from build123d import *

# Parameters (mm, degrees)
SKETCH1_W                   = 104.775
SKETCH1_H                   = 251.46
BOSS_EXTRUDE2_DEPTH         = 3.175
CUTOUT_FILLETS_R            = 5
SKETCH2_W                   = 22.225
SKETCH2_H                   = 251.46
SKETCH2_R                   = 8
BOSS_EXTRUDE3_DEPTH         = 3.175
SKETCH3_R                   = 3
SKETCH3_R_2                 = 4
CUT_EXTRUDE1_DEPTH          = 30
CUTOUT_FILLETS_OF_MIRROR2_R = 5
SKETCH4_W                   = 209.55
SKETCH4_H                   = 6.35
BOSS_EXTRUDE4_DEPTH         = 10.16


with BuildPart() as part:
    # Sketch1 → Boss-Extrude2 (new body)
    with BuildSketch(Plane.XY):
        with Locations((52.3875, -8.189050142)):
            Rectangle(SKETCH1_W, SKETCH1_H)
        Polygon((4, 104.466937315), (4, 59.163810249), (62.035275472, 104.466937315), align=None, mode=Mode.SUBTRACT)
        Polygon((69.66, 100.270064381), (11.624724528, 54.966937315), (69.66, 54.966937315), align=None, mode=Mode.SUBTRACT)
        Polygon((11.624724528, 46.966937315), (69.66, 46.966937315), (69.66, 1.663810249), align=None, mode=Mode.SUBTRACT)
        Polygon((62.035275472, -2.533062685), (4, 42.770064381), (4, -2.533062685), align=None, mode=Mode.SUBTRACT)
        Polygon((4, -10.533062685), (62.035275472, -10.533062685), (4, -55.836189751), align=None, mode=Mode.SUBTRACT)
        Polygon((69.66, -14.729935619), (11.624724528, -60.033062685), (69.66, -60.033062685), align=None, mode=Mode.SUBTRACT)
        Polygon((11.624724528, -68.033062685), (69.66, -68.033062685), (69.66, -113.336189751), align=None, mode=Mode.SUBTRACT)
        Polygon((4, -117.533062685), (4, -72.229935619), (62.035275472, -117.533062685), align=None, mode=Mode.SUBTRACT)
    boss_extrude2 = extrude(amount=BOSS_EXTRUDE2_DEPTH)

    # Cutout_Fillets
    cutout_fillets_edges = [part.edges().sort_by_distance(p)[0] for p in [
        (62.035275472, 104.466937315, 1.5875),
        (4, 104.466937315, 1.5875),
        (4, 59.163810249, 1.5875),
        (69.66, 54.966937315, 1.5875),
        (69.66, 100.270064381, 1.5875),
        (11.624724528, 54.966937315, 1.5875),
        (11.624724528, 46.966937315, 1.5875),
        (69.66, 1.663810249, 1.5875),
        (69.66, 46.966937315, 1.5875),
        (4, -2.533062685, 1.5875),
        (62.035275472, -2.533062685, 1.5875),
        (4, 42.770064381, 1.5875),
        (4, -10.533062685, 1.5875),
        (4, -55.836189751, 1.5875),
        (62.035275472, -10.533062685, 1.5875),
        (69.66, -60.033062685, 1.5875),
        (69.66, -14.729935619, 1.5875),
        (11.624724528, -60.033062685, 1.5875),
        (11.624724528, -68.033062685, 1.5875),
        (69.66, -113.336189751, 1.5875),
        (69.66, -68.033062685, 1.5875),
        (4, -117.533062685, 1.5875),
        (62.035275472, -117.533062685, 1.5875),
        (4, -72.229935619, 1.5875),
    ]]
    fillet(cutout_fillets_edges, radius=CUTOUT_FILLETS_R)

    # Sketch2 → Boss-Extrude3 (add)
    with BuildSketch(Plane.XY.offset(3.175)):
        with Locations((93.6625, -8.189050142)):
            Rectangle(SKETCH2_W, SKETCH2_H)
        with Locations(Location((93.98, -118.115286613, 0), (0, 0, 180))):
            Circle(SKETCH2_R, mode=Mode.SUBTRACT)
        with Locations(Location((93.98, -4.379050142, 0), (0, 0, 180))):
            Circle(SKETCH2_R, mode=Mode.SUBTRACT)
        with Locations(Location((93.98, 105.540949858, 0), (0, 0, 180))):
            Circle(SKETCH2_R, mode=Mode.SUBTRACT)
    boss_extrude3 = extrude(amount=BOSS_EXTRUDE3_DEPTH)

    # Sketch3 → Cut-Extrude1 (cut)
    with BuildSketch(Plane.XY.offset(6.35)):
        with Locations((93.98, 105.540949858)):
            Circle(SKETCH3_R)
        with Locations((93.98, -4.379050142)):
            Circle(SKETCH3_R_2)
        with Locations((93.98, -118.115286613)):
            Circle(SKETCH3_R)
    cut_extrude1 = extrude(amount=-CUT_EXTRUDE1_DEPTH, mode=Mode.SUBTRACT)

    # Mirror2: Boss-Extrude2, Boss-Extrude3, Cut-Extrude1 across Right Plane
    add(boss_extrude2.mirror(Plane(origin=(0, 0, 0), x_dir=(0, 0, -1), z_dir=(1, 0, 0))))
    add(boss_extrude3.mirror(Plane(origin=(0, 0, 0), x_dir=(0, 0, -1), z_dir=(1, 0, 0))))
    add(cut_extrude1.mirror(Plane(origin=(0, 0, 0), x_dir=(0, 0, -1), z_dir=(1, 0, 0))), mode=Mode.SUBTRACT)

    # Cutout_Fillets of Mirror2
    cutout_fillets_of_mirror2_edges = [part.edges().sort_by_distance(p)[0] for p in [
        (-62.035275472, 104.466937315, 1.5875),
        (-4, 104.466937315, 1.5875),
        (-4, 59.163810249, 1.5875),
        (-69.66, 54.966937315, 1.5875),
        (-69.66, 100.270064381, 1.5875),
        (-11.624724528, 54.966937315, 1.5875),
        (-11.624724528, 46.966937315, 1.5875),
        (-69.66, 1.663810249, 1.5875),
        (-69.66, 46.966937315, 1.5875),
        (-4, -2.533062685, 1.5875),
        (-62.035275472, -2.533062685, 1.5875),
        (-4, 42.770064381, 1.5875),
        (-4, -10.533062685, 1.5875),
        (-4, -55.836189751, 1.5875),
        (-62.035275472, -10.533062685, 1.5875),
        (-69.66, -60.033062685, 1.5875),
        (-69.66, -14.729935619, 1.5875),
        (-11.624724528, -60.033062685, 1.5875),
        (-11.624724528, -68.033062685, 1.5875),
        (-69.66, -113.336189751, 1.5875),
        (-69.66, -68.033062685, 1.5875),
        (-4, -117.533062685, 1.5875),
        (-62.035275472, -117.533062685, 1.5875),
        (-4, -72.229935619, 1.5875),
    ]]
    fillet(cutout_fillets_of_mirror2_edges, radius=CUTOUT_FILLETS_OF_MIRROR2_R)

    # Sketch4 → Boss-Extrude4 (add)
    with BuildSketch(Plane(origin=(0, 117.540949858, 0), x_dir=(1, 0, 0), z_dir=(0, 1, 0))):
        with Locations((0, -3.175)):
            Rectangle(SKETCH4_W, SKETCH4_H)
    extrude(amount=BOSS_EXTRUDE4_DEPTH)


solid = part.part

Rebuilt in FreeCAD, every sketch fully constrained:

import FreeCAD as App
import Part
import Sketcher

V = App.Vector
Q = App.Units.Quantity


def edges_at(feature, points):
    """Names of the edges that pass closest to the given points."""
    edges = feature.Shape.Edges
    near = lambda p: min(range(len(edges)), key=lambda i: edges[i].distToShape(Part.Vertex(*p))[0])
    return sorted({f"Edge{near(p) + 1}" for p in points})


def add_polygon(sketch, points):
    """Adds a closed chain of lines whose ends are joined by coincident constraints."""
    first, n = sketch.GeometryCount, len(points)
    for a, b in zip(points, points[1:] + points[:1]):
        sketch.addGeometry(Part.LineSegment(App.Vector(*a, 0), App.Vector(*b, 0)), False)
    for i in range(n):
        sketch.addConstraint(Sketcher.Constraint("Coincident", first + i, 2, first + (i + 1) % n, 1))

doc = App.newDocument("Part")
params = doc.addObject("Spreadsheet::Sheet", "Params")
for row, (alias, value) in enumerate([
    ("sketch1_height", "9.9 in"),
    ("sketch1_width", "4.125 in"),
    ("pad1_length", "0.125 in"),
    ("fillet_radius", "5 mm"),
    ("sketch2_height", "9.9 in"),
    ("sketch2_width", "0.875 in"),
    ("pad2_length", "0.125 in"),
    ("pocket1_length", "30 mm"),
    ("fillet2_radius", "5 mm"),
    ("sketch4_width", "8.25 in"),
    ("sketch4_height", "0.25 in"),
    ("pad3_length", "0.4 in"),
], start=1):
    params.set(f"A{row}", alias)
    params.set(f"B{row}", "=" + value)
    params.setAlias(f"B{row}", alias)

body = doc.addObject("PartDesign::Body", "Body")

sketch1 = body.newObject("Sketcher::SketchObject", "Sketch")
sketch1.AttachmentSupport = (doc.getObject("XY_Plane"), [""])
sketch1.MapMode = "FlatFace"
add_polygon(sketch1, [(0, 118), (0, -134), (105, -134), (105, 118)])
add_polygon(sketch1, [(62, -118), (4, -118), (4, -72)])
add_polygon(sketch1, [(4, -56), (4, -11), (62, -11)])
add_polygon(sketch1, [(70, -113), (12, -68), (70, -68)])
add_polygon(sketch1, [(12, -60), (70, -15), (70, -60)])
add_polygon(sketch1, [(4, 43), (62, -3), (4, -3)])
add_polygon(sketch1, [(4, 59), (4, 104), (62, 104)])
add_polygon(sketch1, [(70, 2), (12, 47), (70, 47)])
add_polygon(sketch1, [(12, 55), (70, 100), (70, 55)])
sketch1.addConstraint(Sketcher.Constraint("Vertical", 0))
sketch1.addConstraint(Sketcher.Constraint("Horizontal", 1))
sketch1.addConstraint(Sketcher.Constraint("Vertical", 2))
sketch1.addConstraint(Sketcher.Constraint("Horizontal", 3))
sketch1.addConstraint(Sketcher.Constraint("Horizontal", 4))
sketch1.addConstraint(Sketcher.Constraint("Vertical", 5))
sketch1.addConstraint(Sketcher.Constraint("Vertical", 7))
sketch1.addConstraint(Sketcher.Constraint("Horizontal", 8))
sketch1.addConstraint(Sketcher.Constraint("Horizontal", 11))
sketch1.addConstraint(Sketcher.Constraint("Vertical", 12))
sketch1.addConstraint(Sketcher.Constraint("Vertical", 14))
sketch1.addConstraint(Sketcher.Constraint("Horizontal", 15))
sketch1.addConstraint(Sketcher.Constraint("Horizontal", 17))
sketch1.addConstraint(Sketcher.Constraint("Vertical", 18))
sketch1.addConstraint(Sketcher.Constraint("Vertical", 19))
sketch1.addConstraint(Sketcher.Constraint("Horizontal", 20))
sketch1.addConstraint(Sketcher.Constraint("Horizontal", 23))
sketch1.addConstraint(Sketcher.Constraint("Vertical", 24))
sketch1.addConstraint(Sketcher.Constraint("Vertical", 26))
sketch1.addConstraint(Sketcher.Constraint("Horizontal", 27))
sketch1.addConstraint(Sketcher.Constraint("PointOnObject", 0, 2, -2))
sketch1.addConstraint(Sketcher.Constraint("Parallel", 6, 10))
sketch1.addConstraint(Sketcher.Constraint("Parallel", 9, 13))
sketch1.addConstraint(Sketcher.Constraint("Parallel", 10, 16))
sketch1.addConstraint(Sketcher.Constraint("Parallel", 13, 21))
sketch1.addConstraint(Sketcher.Constraint("Parallel", 16, 22))
sketch1.addConstraint(Sketcher.Constraint("Parallel", 21, 25))
sketch1.addConstraint(Sketcher.Constraint("Vertical", 5, 2, 7, 2))
sketch1.addConstraint(Sketcher.Constraint("Vertical", 6, 2, 8, 2))
sketch1.addConstraint(Sketcher.Constraint("Vertical", 12, 2, 13, 2))
sketch1.addConstraint(Sketcher.Constraint("Vertical", 10, 2, 15, 2))
sketch1.addConstraint(Sketcher.Constraint("Vertical", 8, 2, 16, 2))
sketch1.addConstraint(Sketcher.Constraint("Vertical", 9, 2, 17, 2))
sketch1.addConstraint(Sketcher.Constraint("Vertical", 18, 2, 19, 2))
sketch1.addConstraint(Sketcher.Constraint("Vertical", 16, 2, 20, 2))
sketch1.addConstraint(Sketcher.Constraint("Vertical", 15, 2, 22, 2))
sketch1.addConstraint(Sketcher.Constraint("Vertical", 14, 2, 23, 2))
sketch1.addConstraint(Sketcher.Constraint("Vertical", 24, 2, 25, 2))
sketch1.addConstraint(Sketcher.Constraint("Vertical", 22, 2, 27, 2))
sketch1.addConstraint(Sketcher.Constraint("Equal", 8, 11))
sketch1.addConstraint(Sketcher.Constraint("Equal", 5, 7))
sketch1.addConstraint(Sketcher.Constraint("DistanceY", 0, 2, 0, 1, Q("9.9 in")))
sketch1.addConstraint(Sketcher.Constraint("DistanceX", 1, 1, 1, 2, Q("4.125 in")))
sketch1.addConstraint(Sketcher.Constraint("DistanceX", -1, 1, 4, 2, Q("4 mm")))
sketch1.addConstraint(Sketcher.Constraint("DistanceX", -1, 1, 11, 2, Q("69.66 mm")))
sketch1.addConstraint(Sketcher.Constraint("DistanceY", 4, 2, 7, 2, Q("107 mm")))
sketch1.addConstraint(Sketcher.Constraint("DistanceY", 4, 2, 10, 2, Q("49.5 mm")))
sketch1.addConstraint(Sketcher.Constraint("DistanceY", 11, 2, 14, 2, Q("8 mm")))
sketch1.addConstraint(Sketcher.Constraint("DistanceY", 8, 2, 16, 2, Q("8 mm")))
sketch1.addConstraint(Sketcher.Constraint("DistanceY", 17, 2, 19, 2, Q("107 mm")))
sketch1.addConstraint(Sketcher.Constraint("DistanceY", 17, 2, 22, 2, Q("49.5 mm")))
sketch1.addConstraint(Sketcher.Constraint("DistanceY", 23, 2, 26, 2, Q("8 mm")))
sketch1.addConstraint(Sketcher.Constraint("DistanceX", 4, 2, 4, 1, Q("58.035275 mm")))
sketch1.addConstraint(Sketcher.Constraint("DistanceY", 5, 1, 5, 2, Q("45.303127 mm")))
sketch1.addConstraint(Sketcher.Constraint("DistanceY", 0, 2, -1, 1, Q("133.91905 mm")))
sketch1.addConstraint(Sketcher.Constraint("DistanceY", 9, 2, -1, 1, Q("55.83619 mm")))
sketch1.setExpression("Constraints[69]", "Params.sketch1_height")
sketch1.setExpression("Constraints[70]", "Params.sketch1_width")
pad1 = body.newObject("PartDesign::Pad", "Pad")
pad1.Profile = sketch1
pad1.setExpression("Length", "Params.pad1_length")
doc.recompute()

fillet = body.newObject("PartDesign::Fillet", "Fillet")
fillet.Base = (pad1, edges_at(pad1, [
    (62.035, 104.467, 1.587),
    (4, 104.467, 1.587),
    (4, 59.164, 1.587),
    (69.66, 54.967, 1.587),
    (69.66, 100.27, 1.587),
    (11.625, 54.967, 1.587),
    (11.625, 46.967, 1.587),
    (69.66, 1.664, 1.587),
    (69.66, 46.967, 1.587),
    (4, -2.533, 1.587),
    (62.035, -2.533, 1.587),
    (4, 42.77, 1.587),
    (4, -10.533, 1.587),
    (4, -55.836, 1.587),
    (62.035, -10.533, 1.587),
    (69.66, -60.033, 1.587),
    (69.66, -14.73, 1.587),
    (11.625, -60.033, 1.587),
    (11.625, -68.033, 1.587),
    (69.66, -113.336, 1.587),
    (69.66, -68.033, 1.587),
    (4, -117.533, 1.587),
    (62.035, -117.533, 1.587),
    (4, -72.23, 1.587),
]))
fillet.setExpression("Radius", "Params.fillet_radius")

sketch2 = body.newObject("Sketcher::SketchObject", "Sketch001")
sketch2.AttachmentSupport = (doc.getObject("XY_Plane"), [""])
sketch2.MapMode = "FlatFace"
sketch2.AttachmentOffset = App.Placement(V(0, 0, 0.125 * 25.4), App.Rotation())
add_polygon(sketch2, [(83, 118), (83, -134), (105, -134), (105, 118)])
sketch2.addGeometry(Part.Circle(V(94, -118, 0), V(0, 0, 1), 8), False)
sketch2.addGeometry(Part.Circle(V(94, -4, 0), V(0, 0, 1), 8), False)
sketch2.addGeometry(Part.Circle(V(94, 106, 0), V(0, 0, 1), 8), False)
sketch2.addConstraint(Sketcher.Constraint("Vertical", 0))
sketch2.addConstraint(Sketcher.Constraint("Horizontal", 1))
sketch2.addConstraint(Sketcher.Constraint("Vertical", 2))
sketch2.addConstraint(Sketcher.Constraint("Horizontal", 3))
sketch2.addConstraint(Sketcher.Constraint("Equal", 4, 5))
sketch2.addConstraint(Sketcher.Constraint("Equal", 5, 6))
sketch2.addConstraint(Sketcher.Constraint("Vertical", 4, 3, 5, 3))
sketch2.addConstraint(Sketcher.Constraint("Vertical", 5, 3, 6, 3))
sketch2.addConstraint(Sketcher.Constraint("DistanceY", 0, 2, 0, 1, Q("9.9 in")))
sketch2.addConstraint(Sketcher.Constraint("DistanceX", -1, 1, 4, 3, Q("3.7 in")))
sketch2.addConstraint(Sketcher.Constraint("DistanceY", 0, 2, 5, 3, Q("5.1 in")))
sketch2.addConstraint(Sketcher.Constraint("Diameter", 4, Q("16 mm")))
sketch2.addConstraint(Sketcher.Constraint("DistanceX", 1, 1, 1, 2, Q("0.875 in")))
sketch2.addConstraint(Sketcher.Constraint("DistanceX", -1, 1, 0, 2, Q("3.25 in")))
sketch2.addConstraint(Sketcher.Constraint("DistanceY", 5, 3, 6, 3, Q("109.92 mm")))
sketch2.addConstraint(Sketcher.Constraint("DistanceY", 5, 3, -1, 1, Q("4.37905 mm")))
sketch2.addConstraint(Sketcher.Constraint("DistanceY", 4, 3, -1, 1, Q("118.115287 mm")))
sketch2.setExpression("Constraints[12]", "Params.sketch2_height")
sketch2.setExpression("Constraints[16]", "Params.sketch2_width")
pad2 = body.newObject("PartDesign::Pad", "Pad001")
pad2.Profile = sketch2
pad2.setExpression("Length", "Params.pad2_length")

sketch3 = body.newObject("Sketcher::SketchObject", "Sketch002")
sketch3.AttachmentSupport = (doc.getObject("XY_Plane"), [""])
sketch3.MapMode = "FlatFace"
sketch3.AttachmentOffset = App.Placement(V(0, 0, 0.25 * 25.4), App.Rotation())
sketch3.addGeometry(Part.Circle(V(94, 105.5, 0), V(0, 0, 1), 3), False)
sketch3.addGeometry(Part.Circle(V(94, -4.4, 0), V(0, 0, 1), 4), False)
sketch3.addGeometry(Part.Circle(V(94, -118.1, 0), V(0, 0, 1), 3), False)
sketch3.addConstraint(Sketcher.Constraint("Equal", 0, 2))
sketch3.addConstraint(Sketcher.Constraint("Vertical", 0, 3, 1, 3))
sketch3.addConstraint(Sketcher.Constraint("Vertical", 1, 3, 2, 3))
sketch3.addConstraint(Sketcher.Constraint("DistanceX", -1, 1, 0, 3, Q("3.7 in")))
sketch3.addConstraint(Sketcher.Constraint("Diameter", 0, Q("6 mm")))
sketch3.addConstraint(Sketcher.Constraint("Diameter", 1, Q("8 mm")))
sketch3.addConstraint(Sketcher.Constraint("DistanceY", 1, 3, 0, 3, Q("109.92 mm")))
sketch3.addConstraint(Sketcher.Constraint("DistanceY", -1, 1, 0, 3, Q("105.54095 mm")))
sketch3.addConstraint(Sketcher.Constraint("DistanceY", 2, 3, -1, 1, Q("118.115287 mm")))
pocket1 = body.newObject("PartDesign::Pocket", "Pocket")
pocket1.Profile = sketch3
pocket1.setExpression("Length", "Params.pocket1_length")
doc.recompute()

mirrored = body.newObject("PartDesign::Mirrored", "Mirrored")
mirrored.Originals = [pad1, pad2, pocket1]
mirrored.MirrorPlane = (doc.getObject("YZ_Plane"), [""])
body.Tip = mirrored
doc.recompute()

fillet2 = body.newObject("PartDesign::Fillet", "Fillet001")
fillet2.Base = (mirrored, edges_at(mirrored, [
    (-62.035, 104.467, 1.587),
    (-4, 104.467, 1.587),
    (-4, 59.164, 1.587),
    (-69.66, 54.967, 1.587),
    (-69.66, 100.27, 1.587),
    (-11.625, 54.967, 1.587),
    (-11.625, 46.967, 1.587),
    (-69.66, 1.664, 1.587),
    (-69.66, 46.967, 1.587),
    (-4, -2.533, 1.587),
    (-62.035, -2.533, 1.587),
    (-4, 42.77, 1.587),
    (-4, -10.533, 1.587),
    (-4, -55.836, 1.587),
    (-62.035, -10.533, 1.587),
    (-69.66, -60.033, 1.587),
    (-69.66, -14.73, 1.587),
    (-11.625, -60.033, 1.587),
    (-11.625, -68.033, 1.587),
    (-69.66, -113.336, 1.587),
    (-69.66, -68.033, 1.587),
    (-4, -117.533, 1.587),
    (-62.035, -117.533, 1.587),
    (-4, -72.23, 1.587),
]))
fillet2.setExpression("Radius", "Params.fillet2_radius")

sketch4 = body.newObject("Sketcher::SketchObject", "Sketch003")
sketch4.AttachmentSupport = (doc.getObject("XZ_Plane"), [""])
sketch4.MapMode = "FlatFace"
sketch4.AttachmentOffset = App.Placement(V(0, 0, -117.54095), App.Rotation())
add_polygon(sketch4, [(-105, 0), (-105, 6), (105, 6), (105, 0)])
sketch4.addConstraint(Sketcher.Constraint("Vertical", 0))
sketch4.addConstraint(Sketcher.Constraint("Horizontal", 1))
sketch4.addConstraint(Sketcher.Constraint("Vertical", 2))
sketch4.addConstraint(Sketcher.Constraint("Horizontal", 3))
sketch4.addConstraint(Sketcher.Constraint("Symmetric", 2, 2, 3, 2, -1, 1))
sketch4.addConstraint(Sketcher.Constraint("DistanceX", 1, 1, 1, 2, Q("8.25 in")))
sketch4.addConstraint(Sketcher.Constraint("DistanceY", 0, 1, 0, 2, Q("0.25 in")))
sketch4.setExpression("Constraints[9]", "Params.sketch4_width")
sketch4.setExpression("Constraints[10]", "Params.sketch4_height")
pad3 = body.newObject("PartDesign::Pad", "Pad002")
pad3.Profile = sketch4
pad3.setExpression("Length", "Params.pad3_length")
pad3.Reversed = True

doc.recompute()
